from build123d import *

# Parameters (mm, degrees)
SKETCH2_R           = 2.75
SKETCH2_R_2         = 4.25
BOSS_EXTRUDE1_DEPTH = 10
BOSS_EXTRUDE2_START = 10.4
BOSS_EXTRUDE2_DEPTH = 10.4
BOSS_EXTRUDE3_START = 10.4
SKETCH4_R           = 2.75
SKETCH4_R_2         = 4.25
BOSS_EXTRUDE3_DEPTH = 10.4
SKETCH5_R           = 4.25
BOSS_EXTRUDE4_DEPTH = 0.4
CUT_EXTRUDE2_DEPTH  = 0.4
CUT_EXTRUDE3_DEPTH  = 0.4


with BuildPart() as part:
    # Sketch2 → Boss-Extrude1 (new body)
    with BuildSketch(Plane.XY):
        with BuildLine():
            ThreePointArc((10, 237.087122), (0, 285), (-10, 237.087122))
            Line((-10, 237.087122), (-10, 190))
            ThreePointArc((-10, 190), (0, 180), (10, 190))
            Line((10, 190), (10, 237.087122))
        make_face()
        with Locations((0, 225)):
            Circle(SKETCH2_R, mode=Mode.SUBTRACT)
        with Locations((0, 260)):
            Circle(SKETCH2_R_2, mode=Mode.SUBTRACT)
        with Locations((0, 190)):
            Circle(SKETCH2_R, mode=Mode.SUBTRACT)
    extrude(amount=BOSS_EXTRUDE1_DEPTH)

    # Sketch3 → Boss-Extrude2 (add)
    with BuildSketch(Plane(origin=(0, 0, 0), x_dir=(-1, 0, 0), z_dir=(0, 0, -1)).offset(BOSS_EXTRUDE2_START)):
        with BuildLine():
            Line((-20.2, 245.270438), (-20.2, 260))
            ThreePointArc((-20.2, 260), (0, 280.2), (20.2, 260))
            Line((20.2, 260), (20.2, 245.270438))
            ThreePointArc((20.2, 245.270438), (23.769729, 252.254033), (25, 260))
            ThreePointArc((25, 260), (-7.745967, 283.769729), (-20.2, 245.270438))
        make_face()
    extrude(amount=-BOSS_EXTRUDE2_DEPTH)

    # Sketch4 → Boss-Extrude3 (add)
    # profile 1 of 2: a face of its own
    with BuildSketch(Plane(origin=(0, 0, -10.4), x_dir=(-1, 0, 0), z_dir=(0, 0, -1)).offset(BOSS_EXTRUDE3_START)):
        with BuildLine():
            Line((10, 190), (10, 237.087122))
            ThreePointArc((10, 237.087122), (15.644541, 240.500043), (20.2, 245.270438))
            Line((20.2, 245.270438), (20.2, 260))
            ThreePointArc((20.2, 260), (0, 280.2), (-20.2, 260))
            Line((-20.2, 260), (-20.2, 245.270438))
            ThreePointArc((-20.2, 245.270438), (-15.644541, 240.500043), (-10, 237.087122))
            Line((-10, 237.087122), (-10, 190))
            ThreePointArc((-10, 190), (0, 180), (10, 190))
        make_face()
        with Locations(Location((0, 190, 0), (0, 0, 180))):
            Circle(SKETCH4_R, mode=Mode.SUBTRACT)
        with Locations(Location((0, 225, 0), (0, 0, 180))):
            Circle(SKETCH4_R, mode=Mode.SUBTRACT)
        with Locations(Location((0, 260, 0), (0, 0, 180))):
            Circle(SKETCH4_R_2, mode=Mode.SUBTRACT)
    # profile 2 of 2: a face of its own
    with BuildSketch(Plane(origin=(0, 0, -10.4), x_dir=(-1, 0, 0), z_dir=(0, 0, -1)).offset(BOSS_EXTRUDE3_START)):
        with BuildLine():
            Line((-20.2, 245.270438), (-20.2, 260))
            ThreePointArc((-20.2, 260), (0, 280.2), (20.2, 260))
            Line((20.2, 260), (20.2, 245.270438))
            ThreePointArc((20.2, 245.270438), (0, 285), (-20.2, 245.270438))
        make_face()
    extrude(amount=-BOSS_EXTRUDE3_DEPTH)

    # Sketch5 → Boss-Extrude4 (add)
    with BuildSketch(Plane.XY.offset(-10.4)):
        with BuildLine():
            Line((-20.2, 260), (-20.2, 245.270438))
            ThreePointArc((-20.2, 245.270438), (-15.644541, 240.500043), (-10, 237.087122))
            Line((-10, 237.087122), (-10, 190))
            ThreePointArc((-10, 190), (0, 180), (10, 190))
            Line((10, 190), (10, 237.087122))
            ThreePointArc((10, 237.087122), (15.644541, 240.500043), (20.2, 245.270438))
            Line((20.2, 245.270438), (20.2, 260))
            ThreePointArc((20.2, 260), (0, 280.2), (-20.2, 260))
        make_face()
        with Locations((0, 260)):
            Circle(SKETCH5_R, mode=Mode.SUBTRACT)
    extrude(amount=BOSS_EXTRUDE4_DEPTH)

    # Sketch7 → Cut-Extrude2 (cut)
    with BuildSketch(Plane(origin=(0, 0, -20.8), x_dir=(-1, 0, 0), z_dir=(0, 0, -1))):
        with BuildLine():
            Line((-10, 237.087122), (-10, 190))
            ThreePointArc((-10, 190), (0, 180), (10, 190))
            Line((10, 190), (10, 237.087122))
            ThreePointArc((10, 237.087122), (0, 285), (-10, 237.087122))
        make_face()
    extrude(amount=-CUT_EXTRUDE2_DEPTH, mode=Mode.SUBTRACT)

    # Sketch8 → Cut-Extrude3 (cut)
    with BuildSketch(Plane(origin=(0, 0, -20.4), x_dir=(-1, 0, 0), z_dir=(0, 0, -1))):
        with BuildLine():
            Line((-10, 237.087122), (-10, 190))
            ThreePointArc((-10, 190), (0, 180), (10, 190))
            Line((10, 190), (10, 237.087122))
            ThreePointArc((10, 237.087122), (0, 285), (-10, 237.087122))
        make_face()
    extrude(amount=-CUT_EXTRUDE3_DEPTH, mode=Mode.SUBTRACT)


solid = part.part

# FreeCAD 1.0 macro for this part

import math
import FreeCAD as App
import Part
import Sketcher

V = App.Vector

doc = App.newDocument("Part")
body = doc.addObject("PartDesign::Body", "Body")

sketch1 = body.newObject("Sketcher::SketchObject", "Sketch")
sketch1.AttachmentSupport = (doc.getObject("XY_Plane"), [""])
sketch1.MapMode = "FlatFace"
sketch1.addGeometry([
    Part.ArcOfCircle(Part.Circle(V(0, 260, 0), V(0, 0, 1), 25), math.radians(-66), math.radians(246)),
    Part.LineSegment(V(-10, 237.1, 0), V(-10, 190, 0)),
    Part.ArcOfCircle(Part.Circle(V(0, 190, 0), V(0, 0, 1), 10), math.radians(180), math.radians(360)),
    Part.LineSegment(V(10, 190, 0), V(10, 237.1, 0)),
    Part.Circle(V(0, 190, 0), V(0, 0, 1), 2.8),
    Part.Circle(V(0, 225, 0), V(0, 0, 1), 2.8),
    Part.Circle(V(0, 260, 0), V(0, 0, 1), 4.2),
], False)
sketch1.addConstraint([
    Sketcher.Constraint("Coincident", 0, 2, 1, 1),
    Sketcher.Constraint("Tangent", 1, 2, 2, 1),
    Sketcher.Constraint("Tangent", 2, 2, 3, 1),
    Sketcher.Constraint("Coincident", 3, 2, 0, 1),
    Sketcher.Constraint("Vertical", 1),
    Sketcher.Constraint("Vertical", 3),
    Sketcher.Constraint("Coincident", 4, 3, 2, 3),
    Sketcher.Constraint("Coincident", 6, 3, 0, 3),
    Sketcher.Constraint("Equal", 4, 5),
    Sketcher.Constraint("Symmetric", 0, 2, 3, 2, -2),
    Sketcher.Constraint("PointOnObject", 5, 3, -2),
    Sketcher.Constraint("Radius", 0, 25.0),
    Sketcher.Constraint("Radius", 2, 10.0),
    Sketcher.Constraint("Diameter", 4, 5.5),
    Sketcher.Constraint("Diameter", 6, 8.5),
    Sketcher.Constraint("DistanceY", -1, 1, 0, 3, 260.0),
    Sketcher.Constraint("DistanceY", -1, 1, 2, 3, 190.0),
    Sketcher.Constraint("DistanceY", -1, 1, 5, 3, 225.0),
])
pad1 = body.newObject("PartDesign::Pad", "Pad")
pad1.Profile = sketch1
pad1.Length = 10

sketch2 = body.newObject("Sketcher::SketchObject", "Sketch001")
sketch2.AttachmentSupport = (doc.getObject("XY_Plane"), [""])
sketch2.MapMode = "FlatFace"
sketch2.AttachmentOffset = App.Placement(V(0, 0, -10.4), App.Rotation())
sketch2.addGeometry([
    Part.LineSegment(V(20, 245, 0), V(20, 260, 0)),
    Part.ArcOfCircle(Part.Circle(V(0, 260, 0), V(0, 0, 1), 20), math.radians(0), math.radians(180)),
    Part.LineSegment(V(-20, 260, 0), V(-20, 245, 0)),
    Part.ArcOfCircle(Part.Circle(V(0, 260, 0), V(0, 0, 1), 25), math.radians(180), math.radians(216)),
    Part.ArcOfCircle(Part.Circle(V(0, 260, 0), V(0, 0, 1), 25), math.radians(-36), math.radians(180)),
], False)
sketch2.addConstraint([
    Sketcher.Constraint("Tangent", 0, 2, 1, 1),
    Sketcher.Constraint("Tangent", 1, 2, 2, 1),
    Sketcher.Constraint("Coincident", 2, 2, 3, 2),
    Sketcher.Constraint("Tangent", 3, 1, 4, 2),
    Sketcher.Constraint("Coincident", 4, 1, 0, 1),
    Sketcher.Constraint("Vertical", 0),
    Sketcher.Constraint("Vertical", 2),
    Sketcher.Constraint("Coincident", 3, 3, 1, 3),
    Sketcher.Constraint("Symmetric", 2, 2, 4, 1, -2),
    Sketcher.Constraint("Horizontal", 1, 2, 3, 1),
    Sketcher.Constraint("Radius", 4, 25.0),
    Sketcher.Constraint("Radius", 1, 20.2),
    Sketcher.Constraint("DistanceY", -1, 1, 1, 3, 260.0),
])
pad2 = body.newObject("PartDesign::Pad", "Pad001")
pad2.Profile = sketch2
pad2.Length = 10.4

sketch3 = body.newObject("Sketcher::SketchObject", "Sketch002")
sketch3.AttachmentSupport = (doc.getObject("XY_Plane"), [""])
sketch3.MapMode = "FlatFace"
sketch3.AttachmentOffset = App.Placement(V(0, 0, -20.8), App.Rotation())
sketch3.addGeometry([
    Part.LineSegment(V(-10, 190, 0), V(-10, 237.1, 0)),
    Part.ArcOfCircle(Part.Circle(V(0, 260, 0), V(0, 0, 1), 25), math.radians(-144), math.radians(-114)),
    Part.ArcOfCircle(Part.Circle(V(0, 260, 0), V(0, 0, 1), 25), math.radians(-36), math.radians(216)),
    Part.ArcOfCircle(Part.Circle(V(0, 260, 0), V(0, 0, 1), 25), math.radians(-66), math.radians(-36)),
    Part.LineSegment(V(10, 237.1, 0), V(10, 190, 0)),
    Part.ArcOfCircle(Part.Circle(V(0, 190, 0), V(0, 0, 1), 10), math.radians(180), math.radians(360)),
    Part.Circle(V(0, 190, 0), V(0, 0, 1), 2.8),
    Part.Circle(V(0, 225, 0), V(0, 0, 1), 2.8),
    Part.Circle(V(0, 260, 0), V(0, 0, 1), 4.2),
], False)
sketch3.addConstraint([
    Sketcher.Constraint("Coincident", 0, 2, 1, 2),
    Sketcher.Constraint("Tangent", 1, 1, 2, 2),
    Sketcher.Constraint("Tangent", 2, 1, 3, 2),
    Sketcher.Constraint("Coincident", 3, 1, 4, 1),
    Sketcher.Constraint("Tangent", 4, 2, 5, 2),
    Sketcher.Constraint("Tangent", 5, 1, 0, 1),
    Sketcher.Constraint("Vertical", 0),
    Sketcher.Constraint("Vertical", 4),
    Sketcher.Constraint("Coincident", 3, 3, 1, 3),
    Sketcher.Constraint("Coincident", 6, 3, 5, 3),
    Sketcher.Constraint("Coincident", 8, 3, 1, 3),
    Sketcher.Constraint("Equal", 6, 7),
    Sketcher.Constraint("Symmetric", 1, 1, 2, 1, -2),
    Sketcher.Constraint("PointOnObject", 5, 3, -2),
    Sketcher.Constraint("PointOnObject", 7, 3, -2),
    Sketcher.Constraint("Radius", 1, 25.000001),
    Sketcher.Constraint("Radius", 5, 10.0),
    Sketcher.Constraint("Diameter", 6, 5.5),
    Sketcher.Constraint("Diameter", 8, 8.5),
    Sketcher.Constraint("DistanceY", -1, 1, 1, 3, 260.000001),
    Sketcher.Constraint("DistanceY", -1, 1, 5, 3, 190.0),
    Sketcher.Constraint("DistanceY", -1, 1, 7, 3, 225.0),
    Sketcher.Constraint("DistanceX", 1, 1, -1, 1, 20.2),
])
pad3 = body.newObject("PartDesign::Pad", "Pad002")
pad3.Profile = sketch3
pad3.Length = 10.4

sketch4 = body.newObject("Sketcher::SketchObject", "Sketch003")
sketch4.AttachmentSupport = (doc.getObject("XY_Plane"), [""])
sketch4.MapMode = "FlatFace"
sketch4.AttachmentOffset = App.Placement(V(0, 0, -10.4), App.Rotation())
sketch4.addGeometry([
    Part.LineSegment(V(-20.2, 260, 0), V(-20.2, 245.3, 0)),
    Part.ArcOfCircle(Part.Circle(V(0, 260, 0), V(0, 0, 1), 25), math.radians(-144), math.radians(-114)),
    Part.LineSegment(V(-10, 237.1, 0), V(-10, 190, 0)),
    Part.ArcOfCircle(Part.Circle(V(0, 190, 0), V(0, 0, 1), 10), math.radians(180), math.radians(360)),
    Part.LineSegment(V(10, 190, 0), V(10, 237.1, 0)),
    Part.ArcOfCircle(Part.Circle(V(0, 260, 0), V(0, 0, 1), 25), math.radians(-66), math.radians(-36)),
    Part.LineSegment(V(20.2, 245.3, 0), V(20.2, 260, 0)),
    Part.ArcOfCircle(Part.Circle(V(0, 260, 0), V(0, 0, 1), 20.2), math.radians(0), math.radians(180)),
    Part.Circle(V(0, 260, 0), V(0, 0, 1), 4.2),
], False)
sketch4.addConstraint([
    Sketcher.Constraint("Coincident", 0, 2, 1, 1),
    Sketcher.Constraint("Coincident", 1, 2, 2, 1),
    Sketcher.Constraint("Tangent", 2, 2, 3, 1),
    Sketcher.Constraint("Tangent", 3, 2, 4, 1),
    Sketcher.Constraint("Coincident", 4, 2, 5, 1),
    Sketcher.Constraint("Coincident", 5, 2, 6, 1),
    Sketcher.Constraint("Tangent", 6, 2, 7, 1),
    Sketcher.Constraint("Tangent", 7, 2, 0, 1),
    Sketcher.Constraint("Vertical", 0),
    Sketcher.Constraint("Vertical", 2),
    Sketcher.Constraint("Vertical", 4),
    Sketcher.Constraint("Vertical", 6),
    Sketcher.Constraint("Coincident", 5, 3, 1, 3),
    Sketcher.Constraint("Coincident", 7, 3, 1, 3),
    Sketcher.Constraint("Coincident", 8, 3, 1, 3),
    Sketcher.Constraint("Equal", 1, 5),
    Sketcher.Constraint("Symmetric", 1, 2, 4, 2, -2),
    Sketcher.Constraint("Radius", 1, 25.000001),
    Sketcher.Constraint("Radius", 3, 10.0),
    Sketcher.Constraint("Diameter", 8, 8.5),
    Sketcher.Constraint("Radius", 7, 20.2),
    Sketcher.Constraint("DistanceY", -1, 1, 1, 3, 260.000001),
    Sketcher.Constraint("DistanceY", -1, 1, 3, 3, 190.0),
])
pad4 = body.newObject("PartDesign::Pad", "Pad003")
pad4.Profile = sketch4
pad4.Length = 0.4

sketch5 = body.newObject("Sketcher::SketchObject", "Sketch004")
sketch5.AttachmentSupport = (doc.getObject("XY_Plane"), [""])
sketch5.MapMode = "FlatFace"
sketch5.AttachmentOffset = App.Placement(V(0, 0, -20.8), App.Rotation())
sketch5.addGeometry([
    Part.LineSegment(V(10, 237, 0), V(10, 190, 0)),
    Part.ArcOfCircle(Part.Circle(V(0, 190, 0), V(0, 0, 1), 10), math.radians(180), math.radians(360)),
    Part.LineSegment(V(-10, 190, 0), V(-10, 237, 0)),
    Part.ArcOfCircle(Part.Circle(V(0, 260, 0), V(0, 0, 1), 25), math.radians(-66), math.radians(246)),
], False)
sketch5.addConstraint([
    Sketcher.Constraint("Tangent", 0, 2, 1, 2),
    Sketcher.Constraint("Tangent", 1, 1, 2, 1),
    Sketcher.Constraint("Coincident", 2, 2, 3, 2),
    Sketcher.Constraint("Coincident", 3, 1, 0, 1),
    Sketcher.Constraint("Vertical", 0),
    Sketcher.Constraint("Vertical", 2),
    Sketcher.Constraint("Symmetric", 2, 2, 3, 1, -2),
    Sketcher.Constraint("Radius", 1, 10.0),
    Sketcher.Constraint("Radius", 3, 25.0),
    Sketcher.Constraint("DistanceY", -1, 1, 1, 3, 190.0),
    Sketcher.Constraint("DistanceY", -1, 1, 3, 3, 260.0),
])
pocket1 = body.newObject("PartDesign::Pocket", "Pocket")
pocket1.Profile = sketch5
pocket1.Length = 0.4
pocket1.Reversed = True

sketch6 = body.newObject("Sketcher::SketchObject", "Sketch005")
sketch6.AttachmentSupport = (doc.getObject("XY_Plane"), [""])
sketch6.MapMode = "FlatFace"
sketch6.AttachmentOffset = App.Placement(V(0, 0, -20.4), App.Rotation())
sketch6.addGeometry([
    Part.LineSegment(V(10, 237, 0), V(10, 190, 0)),
    Part.ArcOfCircle(Part.Circle(V(0, 190, 0), V(0, 0, 1), 10), math.radians(180), math.radians(360)),
    Part.LineSegment(V(-10, 190, 0), V(-10, 237, 0)),
    Part.ArcOfCircle(Part.Circle(V(0, 260, 0), V(0, 0, 1), 25), math.radians(-66), math.radians(246)),
], False)
sketch6.addConstraint([
    Sketcher.Constraint("Tangent", 0, 2, 1, 2),
    Sketcher.Constraint("Tangent", 1, 1, 2, 1),
    Sketcher.Constraint("Coincident", 2, 2, 3, 2),
    Sketcher.Constraint("Coincident", 3, 1, 0, 1),
    Sketcher.Constraint("Vertical", 0),
    Sketcher.Constraint("Vertical", 2),
    Sketcher.Constraint("Symmetric", 2, 2, 3, 1, -2),
    Sketcher.Constraint("Radius", 1, 10.0),
    Sketcher.Constraint("Radius", 3, 25.0),
    Sketcher.Constraint("DistanceY", -1, 1, 1, 3, 190.0),
    Sketcher.Constraint("DistanceY", -1, 1, 3, 3, 260.0),
])
pocket2 = body.newObject("PartDesign::Pocket", "Pocket001")
pocket2.Profile = sketch6
pocket2.Length = 0.4
pocket2.Reversed = True

doc.recompute()
